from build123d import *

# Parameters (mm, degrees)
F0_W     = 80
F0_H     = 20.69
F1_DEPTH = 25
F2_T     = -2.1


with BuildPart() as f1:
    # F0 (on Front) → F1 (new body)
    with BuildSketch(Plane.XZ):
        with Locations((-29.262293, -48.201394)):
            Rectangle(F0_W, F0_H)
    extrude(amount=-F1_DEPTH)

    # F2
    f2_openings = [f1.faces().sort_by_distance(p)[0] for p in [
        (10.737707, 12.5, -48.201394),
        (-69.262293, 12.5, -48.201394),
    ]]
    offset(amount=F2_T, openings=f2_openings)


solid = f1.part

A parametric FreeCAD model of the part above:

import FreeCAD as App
import Part
import Sketcher
from FreeCAD import Vector


def faces_at(feature, points):
    """Names of the faces that lie closest to the given points."""
    faces = feature.Shape.Faces
    near = lambda p: min(range(len(faces)), key=lambda i: faces[i].distToShape(Part.Vertex(*p))[0])
    return sorted({f"Face{near(p) + 1}" for p in points})

doc = App.newDocument("Part")
body = doc.addObject("PartDesign::Body", "Body")

sketch1 = body.newObject("Sketcher::SketchObject", "Sketch")
sketch1.AttachmentSupport = (doc.getObject("XZ_Plane"), [""])
sketch1.MapMode = "FlatFace"
sketch1.addGeometry([
    Part.LineSegment(Vector(-69.262293, -37.856394, 0), Vector(-69.262293, -58.546394, 0)),
    Part.LineSegment(Vector(-69.262293, -58.546394, 0), Vector(10.737707, -58.546394, 0)),
    Part.LineSegment(Vector(10.737707, -58.546394, 0), Vector(10.737707, -37.856394, 0)),
    Part.LineSegment(Vector(10.737707, -37.856394, 0), Vector(-69.262293, -37.856394, 0)),
], False)
sketch1.addConstraint([
    Sketcher.Constraint("Coincident", 0, 2, 1, 1),
    Sketcher.Constraint("Coincident", 1, 2, 2, 1),
    Sketcher.Constraint("Coincident", 2, 2, 3, 1),
    Sketcher.Constraint("Coincident", 3, 2, 0, 1),
    Sketcher.Constraint("Vertical", 0),
    Sketcher.Constraint("Horizontal", 1),
    Sketcher.Constraint("Vertical", 2),
    Sketcher.Constraint("Horizontal", 3),
    Sketcher.Constraint("DistanceX", 1, 1, 1, 2, 80.0),
    Sketcher.Constraint("DistanceY", 0, 2, 0, 1, 20.69),
    Sketcher.Constraint("DistanceX", 0, 2, -1, 1, 69.262293),
    Sketcher.Constraint("DistanceY", 0, 2, -1, 1, 58.546394),
])
pad1 = body.newObject("PartDesign::Pad", "Pad")
pad1.Profile = sketch1
pad1.Length = 25
pad1.Reversed = True
doc.recompute()

thickness = body.newObject("PartDesign::Thickness", "Thickness")
thickness.Base = (pad1, faces_at(pad1, [(10.738, 12.5, -48.201), (-69.262, 12.5, -48.201)]))
thickness.Value = 2.1
thickness.Reversed = True
thickness.Join = "Arc"

doc.recompute()
